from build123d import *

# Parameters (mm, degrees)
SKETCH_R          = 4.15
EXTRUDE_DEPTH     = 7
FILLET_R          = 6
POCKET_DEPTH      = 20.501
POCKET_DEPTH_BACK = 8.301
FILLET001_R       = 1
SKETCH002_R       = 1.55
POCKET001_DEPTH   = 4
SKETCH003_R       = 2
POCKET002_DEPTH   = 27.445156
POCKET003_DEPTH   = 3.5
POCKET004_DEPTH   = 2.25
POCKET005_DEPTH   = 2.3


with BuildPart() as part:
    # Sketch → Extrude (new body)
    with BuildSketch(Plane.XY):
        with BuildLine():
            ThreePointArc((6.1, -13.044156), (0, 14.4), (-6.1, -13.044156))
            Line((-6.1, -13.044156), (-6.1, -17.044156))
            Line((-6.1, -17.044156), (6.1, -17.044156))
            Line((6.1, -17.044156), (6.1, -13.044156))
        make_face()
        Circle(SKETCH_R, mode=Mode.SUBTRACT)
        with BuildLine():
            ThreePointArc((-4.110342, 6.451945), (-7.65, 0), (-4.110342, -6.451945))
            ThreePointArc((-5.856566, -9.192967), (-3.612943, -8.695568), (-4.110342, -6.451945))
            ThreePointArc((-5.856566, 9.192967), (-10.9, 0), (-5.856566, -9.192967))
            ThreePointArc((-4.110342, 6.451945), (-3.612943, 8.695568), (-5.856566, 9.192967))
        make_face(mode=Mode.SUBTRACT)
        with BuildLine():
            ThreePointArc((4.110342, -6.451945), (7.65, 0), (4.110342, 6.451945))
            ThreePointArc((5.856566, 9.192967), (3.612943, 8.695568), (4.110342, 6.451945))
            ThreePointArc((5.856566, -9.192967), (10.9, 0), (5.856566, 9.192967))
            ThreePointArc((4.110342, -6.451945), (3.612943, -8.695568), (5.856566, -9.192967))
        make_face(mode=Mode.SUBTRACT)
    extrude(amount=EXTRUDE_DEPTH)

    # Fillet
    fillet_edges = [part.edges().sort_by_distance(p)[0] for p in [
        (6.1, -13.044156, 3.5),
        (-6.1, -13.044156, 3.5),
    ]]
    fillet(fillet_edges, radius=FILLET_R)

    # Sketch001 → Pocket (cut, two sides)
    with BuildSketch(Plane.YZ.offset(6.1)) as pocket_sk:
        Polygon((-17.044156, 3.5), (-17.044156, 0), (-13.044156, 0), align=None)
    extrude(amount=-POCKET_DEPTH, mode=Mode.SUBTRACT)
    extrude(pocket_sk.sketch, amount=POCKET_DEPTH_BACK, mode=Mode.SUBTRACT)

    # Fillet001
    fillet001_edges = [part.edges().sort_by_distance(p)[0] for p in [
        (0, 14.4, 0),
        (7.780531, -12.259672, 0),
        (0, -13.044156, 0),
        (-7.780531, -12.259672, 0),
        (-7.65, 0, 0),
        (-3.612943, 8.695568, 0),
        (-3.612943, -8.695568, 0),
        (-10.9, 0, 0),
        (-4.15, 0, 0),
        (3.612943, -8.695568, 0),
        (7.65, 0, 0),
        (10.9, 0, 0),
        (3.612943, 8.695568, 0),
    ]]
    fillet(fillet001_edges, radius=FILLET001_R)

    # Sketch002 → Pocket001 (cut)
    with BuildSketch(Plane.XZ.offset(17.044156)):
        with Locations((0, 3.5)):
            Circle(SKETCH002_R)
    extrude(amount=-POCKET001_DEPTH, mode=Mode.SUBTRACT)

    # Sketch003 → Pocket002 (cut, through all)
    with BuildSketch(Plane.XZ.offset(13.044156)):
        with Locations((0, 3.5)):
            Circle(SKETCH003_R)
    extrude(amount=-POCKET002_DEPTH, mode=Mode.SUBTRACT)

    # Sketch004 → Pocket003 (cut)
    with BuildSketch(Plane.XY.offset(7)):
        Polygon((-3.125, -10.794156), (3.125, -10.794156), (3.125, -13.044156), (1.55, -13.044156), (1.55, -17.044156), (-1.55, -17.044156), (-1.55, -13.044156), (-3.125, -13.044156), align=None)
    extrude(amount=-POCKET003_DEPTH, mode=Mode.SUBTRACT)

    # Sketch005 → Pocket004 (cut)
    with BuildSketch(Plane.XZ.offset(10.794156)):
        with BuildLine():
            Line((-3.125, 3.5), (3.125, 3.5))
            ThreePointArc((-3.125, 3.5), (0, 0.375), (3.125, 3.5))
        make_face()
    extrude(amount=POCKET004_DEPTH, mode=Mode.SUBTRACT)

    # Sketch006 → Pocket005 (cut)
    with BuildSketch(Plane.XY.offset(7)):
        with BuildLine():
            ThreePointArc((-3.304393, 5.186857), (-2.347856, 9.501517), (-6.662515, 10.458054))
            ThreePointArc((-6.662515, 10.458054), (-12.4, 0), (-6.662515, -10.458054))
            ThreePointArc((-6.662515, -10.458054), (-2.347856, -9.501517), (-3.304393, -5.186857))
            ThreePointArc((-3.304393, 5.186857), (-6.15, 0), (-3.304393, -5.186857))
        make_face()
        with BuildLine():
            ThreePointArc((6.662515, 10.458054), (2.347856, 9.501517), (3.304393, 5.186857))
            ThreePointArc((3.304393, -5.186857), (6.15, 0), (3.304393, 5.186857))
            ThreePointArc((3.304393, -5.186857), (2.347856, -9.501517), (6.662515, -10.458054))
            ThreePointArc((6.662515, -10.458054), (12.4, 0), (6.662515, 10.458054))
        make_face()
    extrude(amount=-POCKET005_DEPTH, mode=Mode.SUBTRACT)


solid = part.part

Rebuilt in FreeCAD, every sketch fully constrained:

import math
import FreeCAD as App
import Part
import Sketcher

V = App.Vector
Q = App.Units.Quantity


def edges_at(feature, points):
    """Names of the edges that pass closest to the given points."""
    edges = feature.Shape.Edges
    near = lambda p: min(range(len(edges)), key=lambda i: edges[i].distToShape(Part.Vertex(*p))[0])
    return sorted({f"Edge{near(p) + 1}" for p in points})

doc = App.newDocument("Part")
body = doc.addObject("PartDesign::Body", "Body")

# Sketch on XY plane
sketch1 = body.newObject("Sketcher::SketchObject", "Sketch")
sketch1.AttachmentSupport = (doc.getObject("XY_Plane"), [""])
sketch1.MapMode = "FlatFace"
sketch1.addGeometry([
    Part.ArcOfCircle(Part.Circle(V(0, 0, 0), V(0, 0, 1), 14.4), math.radians(-65), math.radians(245)),  # 0
    Part.LineSegment(V(-6.1, -13, 0), V(-6.1, -17, 0)),  # 1
    Part.LineSegment(V(-6.1, -17, 0), V(6.1, -17, 0)),  # 2
    Part.LineSegment(V(6.1, -17, 0), V(6.1, -13, 0)),  # 3
    Part.ArcOfCircle(Part.Circle(V(-5, 7.8, 0), V(0, 0, 1), 1.6), math.radians(-57), math.radians(123)),  # 4
    Part.ArcOfCircle(Part.Circle(V(0, 0, 0), V(0, 0, 1), 7.7), math.radians(123), math.radians(237)),  # 5
    Part.ArcOfCircle(Part.Circle(V(-5, -7.8, 0), V(0, 0, 1), 1.6), math.radians(-123), math.radians(57)),  # 6
    Part.ArcOfCircle(Part.Circle(V(0, 0, 0), V(0, 0, 1), 10.9), math.radians(123), math.radians(237)),  # 7
    Part.Circle(V(0, 0, 0), V(0, 0, 1), 4.2),  # 8
    Part.ArcOfCircle(Part.Circle(V(5, -7.8, 0), V(0, 0, 1), 1.6), math.radians(123), math.radians(303)),  # 9
    Part.ArcOfCircle(Part.Circle(V(0, 0, 0), V(0, 0, 1), 7.7), math.radians(-57), math.radians(57)),  # 10
    Part.ArcOfCircle(Part.Circle(V(5, 7.8, 0), V(0, 0, 1), 1.6), math.radians(57), math.radians(237)),  # 11
    Part.ArcOfCircle(Part.Circle(V(0, 0, 0), V(0, 0, 1), 10.9), math.radians(-57), math.radians(57)),  # 12
], False)
sketch1.addConstraint([
    Sketcher.Constraint("Coincident", 0, 2, 1, 1),
    Sketcher.Constraint("Coincident", 1, 2, 2, 1),
    Sketcher.Constraint("Coincident", 2, 2, 3, 1),
    Sketcher.Constraint("Coincident", 3, 2, 0, 1),
    Sketcher.Constraint("Tangent", 4, 1, 5, 1),
    Sketcher.Constraint("Tangent", 5, 2, 6, 2),
    Sketcher.Constraint("Tangent", 6, 1, 7, 2),
    Sketcher.Constraint("Tangent", 7, 1, 4, 2),
    Sketcher.Constraint("Tangent", 9, 1, 10, 1),
    Sketcher.Constraint("Tangent", 10, 2, 11, 2),
    Sketcher.Constraint("Tangent", 11, 1, 12, 2),
    Sketcher.Constraint("Tangent", 12, 1, 9, 2),
    Sketcher.Constraint("Vertical", 1),
    Sketcher.Constraint("Horizontal", 2),
    Sketcher.Constraint("Vertical", 3),
    Sketcher.Constraint("Coincident", 0, 3, -1, 1),
    Sketcher.Constraint("Coincident", 5, 3, -1, 1),
    Sketcher.Constraint("Coincident", 7, 3, -1, 1),
    Sketcher.Constraint("Coincident", 8, 3, -1, 1),
    Sketcher.Constraint("Coincident", 10, 3, -1, 1),
    Sketcher.Constraint("Coincident", 12, 3, -1, 1),
    Sketcher.Constraint("Equal", 6, 9),
    Sketcher.Constraint("Equal", 5, 10),
    Sketcher.Constraint("Horizontal", 6, 3, 9, 3),
    Sketcher.Constraint("Horizontal", 4, 3, 11, 3),
    Sketcher.Constraint("Horizontal", 0, 2, 3, 2),
    Sketcher.Constraint("Vertical", 4, 3, 6, 3),
    Sketcher.Constraint("Diameter", 8, Q("8.3 mm")),
    Sketcher.Constraint("Radius", 0, Q("14.4 mm")),
    Sketcher.Constraint("Radius", 7, Q("10.900001 mm")),
    Sketcher.Constraint("DistanceY", 1, 2, 1, 1, Q("4 mm")),
    Sketcher.Constraint("Radius", 5, Q("7.650001 mm")),
    Sketcher.Constraint("DistanceX", 2, 1, 2, 2, Q("12.2 mm")),
    Sketcher.Constraint("DistanceY", 0, 2, 6, 3, Q("5.2217 mm")),
])
pad1 = body.newObject("PartDesign::Pad", "Pad")
pad1.Profile = sketch1
pad1.Length = 7
doc.recompute()

fillet = body.newObject("PartDesign::Fillet", "Fillet")
fillet.Base = (pad1, edges_at(pad1, [(6.1, -13.044, 3.5), (-6.1, -13.044, 3.5)]))
fillet.Radius = 6

# Sketch on YZ plane
sketch2 = body.newObject("Sketcher::SketchObject", "Sketch001")
sketch2.AttachmentSupport = (doc.getObject("YZ_Plane"), [""])
sketch2.MapMode = "FlatFace"
sketch2.AttachmentOffset = App.Placement(V(0, 0, 6.1), App.Rotation())
sketch2.addGeometry([
    Part.LineSegment(V(-17, 3.5, 0), V(-17, 0, 0)),
    Part.LineSegment(V(-17, 0, 0), V(-13, 0, 0)),
    Part.LineSegment(V(-13, 0, 0), V(-17, 3.5, 0)),
], False)
sketch2.addConstraint([
    Sketcher.Constraint("Coincident", 0, 2, 1, 1),
    Sketcher.Constraint("Coincident", 1, 2, 2, 1),
    Sketcher.Constraint("Coincident", 2, 2, 0, 1),
    Sketcher.Constraint("Vertical", 0),
    Sketcher.Constraint("Horizontal", 1),
    Sketcher.Constraint("PointOnObject", 0, 2, -1),
    Sketcher.Constraint("DistanceX", 1, 1, 1, 2, Q("4 mm")),
    Sketcher.Constraint("DistanceY", 0, 2, 0, 1, Q("3.5 mm")),
    Sketcher.Constraint("DistanceX", 0, 2, -1, 1, Q("17.044156 mm")),
])
pocket1 = body.newObject("PartDesign::Pocket", "Pocket")
pocket1.Profile = sketch2
pocket1.Type = "ThroughAll"
pocket1.Midplane = True
doc.recompute()

fillet2 = body.newObject("PartDesign::Fillet", "Fillet001")
fillet2.Base = (pocket1, edges_at(pocket1, [
    (0, 14.4, 0),
    (7.781, -12.26, 0),
    (0, -13.044, 0),
    (-7.781, -12.26, 0),
    (-7.65, 0, 0),
    (-3.613, 8.696, 0),
    (-3.613, -8.696, 0),
    (-10.9, 0, 0),
    (-4.15, 0, 0),
    (3.613, -8.696, 0),
    (7.65, 0, 0),
    (10.9, 0, 0),
    (3.613, 8.696, 0),
]))
fillet2.Radius = 1

# Sketch on XZ plane
sketch3 = body.newObject("Sketcher::SketchObject", "Sketch002")
sketch3.AttachmentSupport = (doc.getObject("XZ_Plane"), [""])
sketch3.MapMode = "FlatFace"
sketch3.AttachmentOffset = App.Placement(V(0, 0, 17.044156), App.Rotation())
sketch3.addGeometry(Part.Circle(V(0, 3.5, 0), V(0, 0, 1), 1.6), False)
sketch3.addConstraint([
    Sketcher.Constraint("PointOnObject", 0, 3, -2),
    Sketcher.Constraint("Diameter", 0, Q("3.1 mm")),
    Sketcher.Constraint("DistanceY", -1, 1, 0, 3, Q("3.5 mm")),
])
pocket2 = body.newObject("PartDesign::Pocket", "Pocket001")
pocket2.Profile = sketch3
pocket2.Length = 4

# Sketch on XZ plane
sketch4 = body.newObject("Sketcher::SketchObject", "Sketch003")
sketch4.AttachmentSupport = (doc.getObject("XZ_Plane"), [""])
sketch4.MapMode = "FlatFace"
sketch4.AttachmentOffset = App.Placement(V(0, 0, 13.044156), App.Rotation())
sketch4.addGeometry(Part.Circle(V(0, 3.5, 0), V(0, 0, 1), 2), False)
sketch4.addConstraint([
    Sketcher.Constraint("PointOnObject", 0, 3, -2),
    Sketcher.Constraint("Diameter", 0, Q("4 mm")),
    Sketcher.Constraint("DistanceY", -1, 1, 0, 3, Q("3.5 mm")),
])
pocket3 = body.newObject("PartDesign::Pocket", "Pocket002")
pocket3.Profile = sketch4
pocket3.Type = "ThroughAll"

# Sketch on XY plane
sketch5 = body.newObject("Sketcher::SketchObject", "Sketch004")
sketch5.AttachmentSupport = (doc.getObject("XY_Plane"), [""])
sketch5.MapMode = "FlatFace"
sketch5.AttachmentOffset = App.Placement(V(0, 0, 7), App.Rotation())
sketch5.addGeometry([
    Part.LineSegment(V(3.1, -10.8, 0), V(-3.1, -10.8, 0)),  # 0
    Part.LineSegment(V(-3.1, -10.8, 0), V(-3.1, -13, 0)),  # 1
    Part.LineSegment(V(-3.1, -13, 0), V(-1.6, -13, 0)),  # 2
    Part.LineSegment(V(-1.6, -13, 0), V(-1.6, -17, 0)),  # 3
    Part.LineSegment(V(-1.6, -17, 0), V(1.6, -17, 0)),  # 4
    Part.LineSegment(V(1.6, -17, 0), V(1.6, -13, 0)),  # 5
    Part.LineSegment(V(1.6, -13, 0), V(3.1, -13, 0)),  # 6
    Part.LineSegment(V(3.1, -13, 0), V(3.1, -10.8, 0)),  # 7
], False)
sketch5.addConstraint([
    Sketcher.Constraint("Coincident", 0, 2, 1, 1),
    Sketcher.Constraint("Coincident", 1, 2, 2, 1),
    Sketcher.Constraint("Coincident", 2, 2, 3, 1),
    Sketcher.Constraint("Coincident", 3, 2, 4, 1),
    Sketcher.Constraint("Coincident", 4, 2, 5, 1),
    Sketcher.Constraint("Coincident", 5, 2, 6, 1),
    Sketcher.Constraint("Coincident", 6, 2, 7, 1),
    Sketcher.Constraint("Coincident", 7, 2, 0, 1),
    Sketcher.Constraint("Horizontal", 0),
    Sketcher.Constraint("Vertical", 1),
    Sketcher.Constraint("Horizontal", 2),
    Sketcher.Constraint("Vertical", 3),
    Sketcher.Constraint("Horizontal", 4),
    Sketcher.Constraint("Vertical", 5),
    Sketcher.Constraint("Horizontal", 6),
    Sketcher.Constraint("Vertical", 7),
    Sketcher.Constraint("Symmetric", 2, 2, 5, 2, -2),
    Sketcher.Constraint("Equal", 2, 6),
    Sketcher.Constraint("DistanceY", 3, 2, 3, 1, Q("4 mm")),
    Sketcher.Constraint("DistanceX", 4, 1, 4, 2, Q("3.1 mm")),
    Sketcher.Constraint("DistanceX", 0, 2, 0, 1, Q("6.25 mm")),
    Sketcher.Constraint("DistanceY", 1, 2, 1, 1, Q("2.25 mm")),
    Sketcher.Constraint("DistanceY", 0, 2, -1, 1, Q("10.794156 mm")),
])
pocket4 = body.newObject("PartDesign::Pocket", "Pocket003")
pocket4.Profile = sketch5
pocket4.Length = 3.5

# Sketch on XZ plane
sketch6 = body.newObject("Sketcher::SketchObject", "Sketch005")
sketch6.AttachmentSupport = (doc.getObject("XZ_Plane"), [""])
sketch6.MapMode = "FlatFace"
sketch6.AttachmentOffset = App.Placement(V(0, 0, 10.794156), App.Rotation())
sketch6.addGeometry([
    Part.LineSegment(V(3.1, 3.5, 0), V(-3.1, 3.5, 0)),
    Part.ArcOfCircle(Part.Circle(V(0, 3.5, 0), V(0, 0, 1), 3.1), math.radians(180), math.radians(360)),
], False)
sketch6.addConstraint([
    Sketcher.Constraint("Coincident", 0, 1, 1, 2),
    Sketcher.Constraint("Coincident", 1, 1, 0, 2),
    Sketcher.Constraint("Horizontal", 0),
    Sketcher.Constraint("PointOnObject", 1, 3, -2),
    Sketcher.Constraint("Horizontal", 1, 3, 0, 1),
    Sketcher.Constraint("Radius", 1, Q("3.125 mm")),
    Sketcher.Constraint("DistanceY", -1, 1, 1, 3, Q("3.5 mm")),
])
pocket5 = body.newObject("PartDesign::Pocket", "Pocket004")
pocket5.Profile = sketch6
pocket5.Length = 2.25
pocket5.Reversed = True

# Sketch on XY plane
sketch7 = body.newObject("Sketcher::SketchObject", "Sketch006")
sketch7.AttachmentSupport = (doc.getObject("XY_Plane"), [""])
sketch7.MapMode = "FlatFace"
sketch7.AttachmentOffset = App.Placement(V(0, 0, 7), App.Rotation())
sketch7.addGeometry([
    Part.ArcOfCircle(Part.Circle(V(-5, 7.8, 0), V(0, 0, 1), 3.1), math.radians(-58), math.radians(122)),  # 0
    Part.ArcOfCircle(Part.Circle(V(0, 0, 0), V(0, 0, 1), 12.4), math.radians(122), math.radians(238)),  # 1
    Part.ArcOfCircle(Part.Circle(V(-5, -7.8, 0), V(0, 0, 1), 3.1), math.radians(-122), math.radians(58)),  # 2
    Part.ArcOfCircle(Part.Circle(V(0, 0, 0), V(0, 0, 1), 6.1), math.radians(123), math.radians(237)),  # 3
    Part.ArcOfCircle(Part.Circle(V(5, 7.8, 0), V(0, 0, 1), 3.1), math.radians(58), math.radians(238)),  # 4
    Part.ArcOfCircle(Part.Circle(V(0, 0, 0), V(0, 0, 1), 6.1), math.radians(-57), math.radians(57)),  # 5
    Part.ArcOfCircle(Part.Circle(V(5, -7.8, 0), V(0, 0, 1), 3.1), math.radians(122), math.radians(302)),  # 6
    Part.ArcOfCircle(Part.Circle(V(0, 0, 0), V(0, 0, 1), 12.4), math.radians(-58), math.radians(58)),  # 7
], False)
sketch7.addConstraint([
    Sketcher.Constraint("Tangent", 0, 2, 1, 1),
    Sketcher.Constraint("Tangent", 1, 2, 2, 1),
    Sketcher.Constraint("Tangent", 2, 2, 3, 2),
    Sketcher.Constraint("Tangent", 3, 1, 0, 1),
    Sketcher.Constraint("Tangent", 4, 2, 5, 2),
    Sketcher.Constraint("Tangent", 5, 1, 6, 1),
    Sketcher.Constraint("Tangent", 6, 2, 7, 1),
    Sketcher.Constraint("Tangent", 7, 2, 4, 1),
    Sketcher.Constraint("Coincident", 1, 3, -1, 1),
    Sketcher.Constraint("Coincident", 3, 3, -1, 1),
    Sketcher.Constraint("Coincident", 5, 3, -1, 1),
    Sketcher.Constraint("Coincident", 7, 3, -1, 1),
    Sketcher.Constraint("Equal", 2, 4),
    Sketcher.Constraint("Equal", 3, 5),
    Sketcher.Constraint("Horizontal", 0, 3, 4, 3),
    Sketcher.Constraint("Horizontal", 2, 3, 6, 3),
    Sketcher.Constraint("Vertical", 0, 3, 2, 3),
    Sketcher.Constraint("Radius", 1, Q("12.4 mm")),
    Sketcher.Constraint("Radius", 3, Q("6.15 mm")),
    Sketcher.Constraint("DistanceY", 0, 3, 0, 2, Q("2.635599 mm")),
])
pocket6 = body.newObject("PartDesign::Pocket", "Pocket005")
pocket6.Profile = sketch7
pocket6.Length = 2.3

doc.recompute()
